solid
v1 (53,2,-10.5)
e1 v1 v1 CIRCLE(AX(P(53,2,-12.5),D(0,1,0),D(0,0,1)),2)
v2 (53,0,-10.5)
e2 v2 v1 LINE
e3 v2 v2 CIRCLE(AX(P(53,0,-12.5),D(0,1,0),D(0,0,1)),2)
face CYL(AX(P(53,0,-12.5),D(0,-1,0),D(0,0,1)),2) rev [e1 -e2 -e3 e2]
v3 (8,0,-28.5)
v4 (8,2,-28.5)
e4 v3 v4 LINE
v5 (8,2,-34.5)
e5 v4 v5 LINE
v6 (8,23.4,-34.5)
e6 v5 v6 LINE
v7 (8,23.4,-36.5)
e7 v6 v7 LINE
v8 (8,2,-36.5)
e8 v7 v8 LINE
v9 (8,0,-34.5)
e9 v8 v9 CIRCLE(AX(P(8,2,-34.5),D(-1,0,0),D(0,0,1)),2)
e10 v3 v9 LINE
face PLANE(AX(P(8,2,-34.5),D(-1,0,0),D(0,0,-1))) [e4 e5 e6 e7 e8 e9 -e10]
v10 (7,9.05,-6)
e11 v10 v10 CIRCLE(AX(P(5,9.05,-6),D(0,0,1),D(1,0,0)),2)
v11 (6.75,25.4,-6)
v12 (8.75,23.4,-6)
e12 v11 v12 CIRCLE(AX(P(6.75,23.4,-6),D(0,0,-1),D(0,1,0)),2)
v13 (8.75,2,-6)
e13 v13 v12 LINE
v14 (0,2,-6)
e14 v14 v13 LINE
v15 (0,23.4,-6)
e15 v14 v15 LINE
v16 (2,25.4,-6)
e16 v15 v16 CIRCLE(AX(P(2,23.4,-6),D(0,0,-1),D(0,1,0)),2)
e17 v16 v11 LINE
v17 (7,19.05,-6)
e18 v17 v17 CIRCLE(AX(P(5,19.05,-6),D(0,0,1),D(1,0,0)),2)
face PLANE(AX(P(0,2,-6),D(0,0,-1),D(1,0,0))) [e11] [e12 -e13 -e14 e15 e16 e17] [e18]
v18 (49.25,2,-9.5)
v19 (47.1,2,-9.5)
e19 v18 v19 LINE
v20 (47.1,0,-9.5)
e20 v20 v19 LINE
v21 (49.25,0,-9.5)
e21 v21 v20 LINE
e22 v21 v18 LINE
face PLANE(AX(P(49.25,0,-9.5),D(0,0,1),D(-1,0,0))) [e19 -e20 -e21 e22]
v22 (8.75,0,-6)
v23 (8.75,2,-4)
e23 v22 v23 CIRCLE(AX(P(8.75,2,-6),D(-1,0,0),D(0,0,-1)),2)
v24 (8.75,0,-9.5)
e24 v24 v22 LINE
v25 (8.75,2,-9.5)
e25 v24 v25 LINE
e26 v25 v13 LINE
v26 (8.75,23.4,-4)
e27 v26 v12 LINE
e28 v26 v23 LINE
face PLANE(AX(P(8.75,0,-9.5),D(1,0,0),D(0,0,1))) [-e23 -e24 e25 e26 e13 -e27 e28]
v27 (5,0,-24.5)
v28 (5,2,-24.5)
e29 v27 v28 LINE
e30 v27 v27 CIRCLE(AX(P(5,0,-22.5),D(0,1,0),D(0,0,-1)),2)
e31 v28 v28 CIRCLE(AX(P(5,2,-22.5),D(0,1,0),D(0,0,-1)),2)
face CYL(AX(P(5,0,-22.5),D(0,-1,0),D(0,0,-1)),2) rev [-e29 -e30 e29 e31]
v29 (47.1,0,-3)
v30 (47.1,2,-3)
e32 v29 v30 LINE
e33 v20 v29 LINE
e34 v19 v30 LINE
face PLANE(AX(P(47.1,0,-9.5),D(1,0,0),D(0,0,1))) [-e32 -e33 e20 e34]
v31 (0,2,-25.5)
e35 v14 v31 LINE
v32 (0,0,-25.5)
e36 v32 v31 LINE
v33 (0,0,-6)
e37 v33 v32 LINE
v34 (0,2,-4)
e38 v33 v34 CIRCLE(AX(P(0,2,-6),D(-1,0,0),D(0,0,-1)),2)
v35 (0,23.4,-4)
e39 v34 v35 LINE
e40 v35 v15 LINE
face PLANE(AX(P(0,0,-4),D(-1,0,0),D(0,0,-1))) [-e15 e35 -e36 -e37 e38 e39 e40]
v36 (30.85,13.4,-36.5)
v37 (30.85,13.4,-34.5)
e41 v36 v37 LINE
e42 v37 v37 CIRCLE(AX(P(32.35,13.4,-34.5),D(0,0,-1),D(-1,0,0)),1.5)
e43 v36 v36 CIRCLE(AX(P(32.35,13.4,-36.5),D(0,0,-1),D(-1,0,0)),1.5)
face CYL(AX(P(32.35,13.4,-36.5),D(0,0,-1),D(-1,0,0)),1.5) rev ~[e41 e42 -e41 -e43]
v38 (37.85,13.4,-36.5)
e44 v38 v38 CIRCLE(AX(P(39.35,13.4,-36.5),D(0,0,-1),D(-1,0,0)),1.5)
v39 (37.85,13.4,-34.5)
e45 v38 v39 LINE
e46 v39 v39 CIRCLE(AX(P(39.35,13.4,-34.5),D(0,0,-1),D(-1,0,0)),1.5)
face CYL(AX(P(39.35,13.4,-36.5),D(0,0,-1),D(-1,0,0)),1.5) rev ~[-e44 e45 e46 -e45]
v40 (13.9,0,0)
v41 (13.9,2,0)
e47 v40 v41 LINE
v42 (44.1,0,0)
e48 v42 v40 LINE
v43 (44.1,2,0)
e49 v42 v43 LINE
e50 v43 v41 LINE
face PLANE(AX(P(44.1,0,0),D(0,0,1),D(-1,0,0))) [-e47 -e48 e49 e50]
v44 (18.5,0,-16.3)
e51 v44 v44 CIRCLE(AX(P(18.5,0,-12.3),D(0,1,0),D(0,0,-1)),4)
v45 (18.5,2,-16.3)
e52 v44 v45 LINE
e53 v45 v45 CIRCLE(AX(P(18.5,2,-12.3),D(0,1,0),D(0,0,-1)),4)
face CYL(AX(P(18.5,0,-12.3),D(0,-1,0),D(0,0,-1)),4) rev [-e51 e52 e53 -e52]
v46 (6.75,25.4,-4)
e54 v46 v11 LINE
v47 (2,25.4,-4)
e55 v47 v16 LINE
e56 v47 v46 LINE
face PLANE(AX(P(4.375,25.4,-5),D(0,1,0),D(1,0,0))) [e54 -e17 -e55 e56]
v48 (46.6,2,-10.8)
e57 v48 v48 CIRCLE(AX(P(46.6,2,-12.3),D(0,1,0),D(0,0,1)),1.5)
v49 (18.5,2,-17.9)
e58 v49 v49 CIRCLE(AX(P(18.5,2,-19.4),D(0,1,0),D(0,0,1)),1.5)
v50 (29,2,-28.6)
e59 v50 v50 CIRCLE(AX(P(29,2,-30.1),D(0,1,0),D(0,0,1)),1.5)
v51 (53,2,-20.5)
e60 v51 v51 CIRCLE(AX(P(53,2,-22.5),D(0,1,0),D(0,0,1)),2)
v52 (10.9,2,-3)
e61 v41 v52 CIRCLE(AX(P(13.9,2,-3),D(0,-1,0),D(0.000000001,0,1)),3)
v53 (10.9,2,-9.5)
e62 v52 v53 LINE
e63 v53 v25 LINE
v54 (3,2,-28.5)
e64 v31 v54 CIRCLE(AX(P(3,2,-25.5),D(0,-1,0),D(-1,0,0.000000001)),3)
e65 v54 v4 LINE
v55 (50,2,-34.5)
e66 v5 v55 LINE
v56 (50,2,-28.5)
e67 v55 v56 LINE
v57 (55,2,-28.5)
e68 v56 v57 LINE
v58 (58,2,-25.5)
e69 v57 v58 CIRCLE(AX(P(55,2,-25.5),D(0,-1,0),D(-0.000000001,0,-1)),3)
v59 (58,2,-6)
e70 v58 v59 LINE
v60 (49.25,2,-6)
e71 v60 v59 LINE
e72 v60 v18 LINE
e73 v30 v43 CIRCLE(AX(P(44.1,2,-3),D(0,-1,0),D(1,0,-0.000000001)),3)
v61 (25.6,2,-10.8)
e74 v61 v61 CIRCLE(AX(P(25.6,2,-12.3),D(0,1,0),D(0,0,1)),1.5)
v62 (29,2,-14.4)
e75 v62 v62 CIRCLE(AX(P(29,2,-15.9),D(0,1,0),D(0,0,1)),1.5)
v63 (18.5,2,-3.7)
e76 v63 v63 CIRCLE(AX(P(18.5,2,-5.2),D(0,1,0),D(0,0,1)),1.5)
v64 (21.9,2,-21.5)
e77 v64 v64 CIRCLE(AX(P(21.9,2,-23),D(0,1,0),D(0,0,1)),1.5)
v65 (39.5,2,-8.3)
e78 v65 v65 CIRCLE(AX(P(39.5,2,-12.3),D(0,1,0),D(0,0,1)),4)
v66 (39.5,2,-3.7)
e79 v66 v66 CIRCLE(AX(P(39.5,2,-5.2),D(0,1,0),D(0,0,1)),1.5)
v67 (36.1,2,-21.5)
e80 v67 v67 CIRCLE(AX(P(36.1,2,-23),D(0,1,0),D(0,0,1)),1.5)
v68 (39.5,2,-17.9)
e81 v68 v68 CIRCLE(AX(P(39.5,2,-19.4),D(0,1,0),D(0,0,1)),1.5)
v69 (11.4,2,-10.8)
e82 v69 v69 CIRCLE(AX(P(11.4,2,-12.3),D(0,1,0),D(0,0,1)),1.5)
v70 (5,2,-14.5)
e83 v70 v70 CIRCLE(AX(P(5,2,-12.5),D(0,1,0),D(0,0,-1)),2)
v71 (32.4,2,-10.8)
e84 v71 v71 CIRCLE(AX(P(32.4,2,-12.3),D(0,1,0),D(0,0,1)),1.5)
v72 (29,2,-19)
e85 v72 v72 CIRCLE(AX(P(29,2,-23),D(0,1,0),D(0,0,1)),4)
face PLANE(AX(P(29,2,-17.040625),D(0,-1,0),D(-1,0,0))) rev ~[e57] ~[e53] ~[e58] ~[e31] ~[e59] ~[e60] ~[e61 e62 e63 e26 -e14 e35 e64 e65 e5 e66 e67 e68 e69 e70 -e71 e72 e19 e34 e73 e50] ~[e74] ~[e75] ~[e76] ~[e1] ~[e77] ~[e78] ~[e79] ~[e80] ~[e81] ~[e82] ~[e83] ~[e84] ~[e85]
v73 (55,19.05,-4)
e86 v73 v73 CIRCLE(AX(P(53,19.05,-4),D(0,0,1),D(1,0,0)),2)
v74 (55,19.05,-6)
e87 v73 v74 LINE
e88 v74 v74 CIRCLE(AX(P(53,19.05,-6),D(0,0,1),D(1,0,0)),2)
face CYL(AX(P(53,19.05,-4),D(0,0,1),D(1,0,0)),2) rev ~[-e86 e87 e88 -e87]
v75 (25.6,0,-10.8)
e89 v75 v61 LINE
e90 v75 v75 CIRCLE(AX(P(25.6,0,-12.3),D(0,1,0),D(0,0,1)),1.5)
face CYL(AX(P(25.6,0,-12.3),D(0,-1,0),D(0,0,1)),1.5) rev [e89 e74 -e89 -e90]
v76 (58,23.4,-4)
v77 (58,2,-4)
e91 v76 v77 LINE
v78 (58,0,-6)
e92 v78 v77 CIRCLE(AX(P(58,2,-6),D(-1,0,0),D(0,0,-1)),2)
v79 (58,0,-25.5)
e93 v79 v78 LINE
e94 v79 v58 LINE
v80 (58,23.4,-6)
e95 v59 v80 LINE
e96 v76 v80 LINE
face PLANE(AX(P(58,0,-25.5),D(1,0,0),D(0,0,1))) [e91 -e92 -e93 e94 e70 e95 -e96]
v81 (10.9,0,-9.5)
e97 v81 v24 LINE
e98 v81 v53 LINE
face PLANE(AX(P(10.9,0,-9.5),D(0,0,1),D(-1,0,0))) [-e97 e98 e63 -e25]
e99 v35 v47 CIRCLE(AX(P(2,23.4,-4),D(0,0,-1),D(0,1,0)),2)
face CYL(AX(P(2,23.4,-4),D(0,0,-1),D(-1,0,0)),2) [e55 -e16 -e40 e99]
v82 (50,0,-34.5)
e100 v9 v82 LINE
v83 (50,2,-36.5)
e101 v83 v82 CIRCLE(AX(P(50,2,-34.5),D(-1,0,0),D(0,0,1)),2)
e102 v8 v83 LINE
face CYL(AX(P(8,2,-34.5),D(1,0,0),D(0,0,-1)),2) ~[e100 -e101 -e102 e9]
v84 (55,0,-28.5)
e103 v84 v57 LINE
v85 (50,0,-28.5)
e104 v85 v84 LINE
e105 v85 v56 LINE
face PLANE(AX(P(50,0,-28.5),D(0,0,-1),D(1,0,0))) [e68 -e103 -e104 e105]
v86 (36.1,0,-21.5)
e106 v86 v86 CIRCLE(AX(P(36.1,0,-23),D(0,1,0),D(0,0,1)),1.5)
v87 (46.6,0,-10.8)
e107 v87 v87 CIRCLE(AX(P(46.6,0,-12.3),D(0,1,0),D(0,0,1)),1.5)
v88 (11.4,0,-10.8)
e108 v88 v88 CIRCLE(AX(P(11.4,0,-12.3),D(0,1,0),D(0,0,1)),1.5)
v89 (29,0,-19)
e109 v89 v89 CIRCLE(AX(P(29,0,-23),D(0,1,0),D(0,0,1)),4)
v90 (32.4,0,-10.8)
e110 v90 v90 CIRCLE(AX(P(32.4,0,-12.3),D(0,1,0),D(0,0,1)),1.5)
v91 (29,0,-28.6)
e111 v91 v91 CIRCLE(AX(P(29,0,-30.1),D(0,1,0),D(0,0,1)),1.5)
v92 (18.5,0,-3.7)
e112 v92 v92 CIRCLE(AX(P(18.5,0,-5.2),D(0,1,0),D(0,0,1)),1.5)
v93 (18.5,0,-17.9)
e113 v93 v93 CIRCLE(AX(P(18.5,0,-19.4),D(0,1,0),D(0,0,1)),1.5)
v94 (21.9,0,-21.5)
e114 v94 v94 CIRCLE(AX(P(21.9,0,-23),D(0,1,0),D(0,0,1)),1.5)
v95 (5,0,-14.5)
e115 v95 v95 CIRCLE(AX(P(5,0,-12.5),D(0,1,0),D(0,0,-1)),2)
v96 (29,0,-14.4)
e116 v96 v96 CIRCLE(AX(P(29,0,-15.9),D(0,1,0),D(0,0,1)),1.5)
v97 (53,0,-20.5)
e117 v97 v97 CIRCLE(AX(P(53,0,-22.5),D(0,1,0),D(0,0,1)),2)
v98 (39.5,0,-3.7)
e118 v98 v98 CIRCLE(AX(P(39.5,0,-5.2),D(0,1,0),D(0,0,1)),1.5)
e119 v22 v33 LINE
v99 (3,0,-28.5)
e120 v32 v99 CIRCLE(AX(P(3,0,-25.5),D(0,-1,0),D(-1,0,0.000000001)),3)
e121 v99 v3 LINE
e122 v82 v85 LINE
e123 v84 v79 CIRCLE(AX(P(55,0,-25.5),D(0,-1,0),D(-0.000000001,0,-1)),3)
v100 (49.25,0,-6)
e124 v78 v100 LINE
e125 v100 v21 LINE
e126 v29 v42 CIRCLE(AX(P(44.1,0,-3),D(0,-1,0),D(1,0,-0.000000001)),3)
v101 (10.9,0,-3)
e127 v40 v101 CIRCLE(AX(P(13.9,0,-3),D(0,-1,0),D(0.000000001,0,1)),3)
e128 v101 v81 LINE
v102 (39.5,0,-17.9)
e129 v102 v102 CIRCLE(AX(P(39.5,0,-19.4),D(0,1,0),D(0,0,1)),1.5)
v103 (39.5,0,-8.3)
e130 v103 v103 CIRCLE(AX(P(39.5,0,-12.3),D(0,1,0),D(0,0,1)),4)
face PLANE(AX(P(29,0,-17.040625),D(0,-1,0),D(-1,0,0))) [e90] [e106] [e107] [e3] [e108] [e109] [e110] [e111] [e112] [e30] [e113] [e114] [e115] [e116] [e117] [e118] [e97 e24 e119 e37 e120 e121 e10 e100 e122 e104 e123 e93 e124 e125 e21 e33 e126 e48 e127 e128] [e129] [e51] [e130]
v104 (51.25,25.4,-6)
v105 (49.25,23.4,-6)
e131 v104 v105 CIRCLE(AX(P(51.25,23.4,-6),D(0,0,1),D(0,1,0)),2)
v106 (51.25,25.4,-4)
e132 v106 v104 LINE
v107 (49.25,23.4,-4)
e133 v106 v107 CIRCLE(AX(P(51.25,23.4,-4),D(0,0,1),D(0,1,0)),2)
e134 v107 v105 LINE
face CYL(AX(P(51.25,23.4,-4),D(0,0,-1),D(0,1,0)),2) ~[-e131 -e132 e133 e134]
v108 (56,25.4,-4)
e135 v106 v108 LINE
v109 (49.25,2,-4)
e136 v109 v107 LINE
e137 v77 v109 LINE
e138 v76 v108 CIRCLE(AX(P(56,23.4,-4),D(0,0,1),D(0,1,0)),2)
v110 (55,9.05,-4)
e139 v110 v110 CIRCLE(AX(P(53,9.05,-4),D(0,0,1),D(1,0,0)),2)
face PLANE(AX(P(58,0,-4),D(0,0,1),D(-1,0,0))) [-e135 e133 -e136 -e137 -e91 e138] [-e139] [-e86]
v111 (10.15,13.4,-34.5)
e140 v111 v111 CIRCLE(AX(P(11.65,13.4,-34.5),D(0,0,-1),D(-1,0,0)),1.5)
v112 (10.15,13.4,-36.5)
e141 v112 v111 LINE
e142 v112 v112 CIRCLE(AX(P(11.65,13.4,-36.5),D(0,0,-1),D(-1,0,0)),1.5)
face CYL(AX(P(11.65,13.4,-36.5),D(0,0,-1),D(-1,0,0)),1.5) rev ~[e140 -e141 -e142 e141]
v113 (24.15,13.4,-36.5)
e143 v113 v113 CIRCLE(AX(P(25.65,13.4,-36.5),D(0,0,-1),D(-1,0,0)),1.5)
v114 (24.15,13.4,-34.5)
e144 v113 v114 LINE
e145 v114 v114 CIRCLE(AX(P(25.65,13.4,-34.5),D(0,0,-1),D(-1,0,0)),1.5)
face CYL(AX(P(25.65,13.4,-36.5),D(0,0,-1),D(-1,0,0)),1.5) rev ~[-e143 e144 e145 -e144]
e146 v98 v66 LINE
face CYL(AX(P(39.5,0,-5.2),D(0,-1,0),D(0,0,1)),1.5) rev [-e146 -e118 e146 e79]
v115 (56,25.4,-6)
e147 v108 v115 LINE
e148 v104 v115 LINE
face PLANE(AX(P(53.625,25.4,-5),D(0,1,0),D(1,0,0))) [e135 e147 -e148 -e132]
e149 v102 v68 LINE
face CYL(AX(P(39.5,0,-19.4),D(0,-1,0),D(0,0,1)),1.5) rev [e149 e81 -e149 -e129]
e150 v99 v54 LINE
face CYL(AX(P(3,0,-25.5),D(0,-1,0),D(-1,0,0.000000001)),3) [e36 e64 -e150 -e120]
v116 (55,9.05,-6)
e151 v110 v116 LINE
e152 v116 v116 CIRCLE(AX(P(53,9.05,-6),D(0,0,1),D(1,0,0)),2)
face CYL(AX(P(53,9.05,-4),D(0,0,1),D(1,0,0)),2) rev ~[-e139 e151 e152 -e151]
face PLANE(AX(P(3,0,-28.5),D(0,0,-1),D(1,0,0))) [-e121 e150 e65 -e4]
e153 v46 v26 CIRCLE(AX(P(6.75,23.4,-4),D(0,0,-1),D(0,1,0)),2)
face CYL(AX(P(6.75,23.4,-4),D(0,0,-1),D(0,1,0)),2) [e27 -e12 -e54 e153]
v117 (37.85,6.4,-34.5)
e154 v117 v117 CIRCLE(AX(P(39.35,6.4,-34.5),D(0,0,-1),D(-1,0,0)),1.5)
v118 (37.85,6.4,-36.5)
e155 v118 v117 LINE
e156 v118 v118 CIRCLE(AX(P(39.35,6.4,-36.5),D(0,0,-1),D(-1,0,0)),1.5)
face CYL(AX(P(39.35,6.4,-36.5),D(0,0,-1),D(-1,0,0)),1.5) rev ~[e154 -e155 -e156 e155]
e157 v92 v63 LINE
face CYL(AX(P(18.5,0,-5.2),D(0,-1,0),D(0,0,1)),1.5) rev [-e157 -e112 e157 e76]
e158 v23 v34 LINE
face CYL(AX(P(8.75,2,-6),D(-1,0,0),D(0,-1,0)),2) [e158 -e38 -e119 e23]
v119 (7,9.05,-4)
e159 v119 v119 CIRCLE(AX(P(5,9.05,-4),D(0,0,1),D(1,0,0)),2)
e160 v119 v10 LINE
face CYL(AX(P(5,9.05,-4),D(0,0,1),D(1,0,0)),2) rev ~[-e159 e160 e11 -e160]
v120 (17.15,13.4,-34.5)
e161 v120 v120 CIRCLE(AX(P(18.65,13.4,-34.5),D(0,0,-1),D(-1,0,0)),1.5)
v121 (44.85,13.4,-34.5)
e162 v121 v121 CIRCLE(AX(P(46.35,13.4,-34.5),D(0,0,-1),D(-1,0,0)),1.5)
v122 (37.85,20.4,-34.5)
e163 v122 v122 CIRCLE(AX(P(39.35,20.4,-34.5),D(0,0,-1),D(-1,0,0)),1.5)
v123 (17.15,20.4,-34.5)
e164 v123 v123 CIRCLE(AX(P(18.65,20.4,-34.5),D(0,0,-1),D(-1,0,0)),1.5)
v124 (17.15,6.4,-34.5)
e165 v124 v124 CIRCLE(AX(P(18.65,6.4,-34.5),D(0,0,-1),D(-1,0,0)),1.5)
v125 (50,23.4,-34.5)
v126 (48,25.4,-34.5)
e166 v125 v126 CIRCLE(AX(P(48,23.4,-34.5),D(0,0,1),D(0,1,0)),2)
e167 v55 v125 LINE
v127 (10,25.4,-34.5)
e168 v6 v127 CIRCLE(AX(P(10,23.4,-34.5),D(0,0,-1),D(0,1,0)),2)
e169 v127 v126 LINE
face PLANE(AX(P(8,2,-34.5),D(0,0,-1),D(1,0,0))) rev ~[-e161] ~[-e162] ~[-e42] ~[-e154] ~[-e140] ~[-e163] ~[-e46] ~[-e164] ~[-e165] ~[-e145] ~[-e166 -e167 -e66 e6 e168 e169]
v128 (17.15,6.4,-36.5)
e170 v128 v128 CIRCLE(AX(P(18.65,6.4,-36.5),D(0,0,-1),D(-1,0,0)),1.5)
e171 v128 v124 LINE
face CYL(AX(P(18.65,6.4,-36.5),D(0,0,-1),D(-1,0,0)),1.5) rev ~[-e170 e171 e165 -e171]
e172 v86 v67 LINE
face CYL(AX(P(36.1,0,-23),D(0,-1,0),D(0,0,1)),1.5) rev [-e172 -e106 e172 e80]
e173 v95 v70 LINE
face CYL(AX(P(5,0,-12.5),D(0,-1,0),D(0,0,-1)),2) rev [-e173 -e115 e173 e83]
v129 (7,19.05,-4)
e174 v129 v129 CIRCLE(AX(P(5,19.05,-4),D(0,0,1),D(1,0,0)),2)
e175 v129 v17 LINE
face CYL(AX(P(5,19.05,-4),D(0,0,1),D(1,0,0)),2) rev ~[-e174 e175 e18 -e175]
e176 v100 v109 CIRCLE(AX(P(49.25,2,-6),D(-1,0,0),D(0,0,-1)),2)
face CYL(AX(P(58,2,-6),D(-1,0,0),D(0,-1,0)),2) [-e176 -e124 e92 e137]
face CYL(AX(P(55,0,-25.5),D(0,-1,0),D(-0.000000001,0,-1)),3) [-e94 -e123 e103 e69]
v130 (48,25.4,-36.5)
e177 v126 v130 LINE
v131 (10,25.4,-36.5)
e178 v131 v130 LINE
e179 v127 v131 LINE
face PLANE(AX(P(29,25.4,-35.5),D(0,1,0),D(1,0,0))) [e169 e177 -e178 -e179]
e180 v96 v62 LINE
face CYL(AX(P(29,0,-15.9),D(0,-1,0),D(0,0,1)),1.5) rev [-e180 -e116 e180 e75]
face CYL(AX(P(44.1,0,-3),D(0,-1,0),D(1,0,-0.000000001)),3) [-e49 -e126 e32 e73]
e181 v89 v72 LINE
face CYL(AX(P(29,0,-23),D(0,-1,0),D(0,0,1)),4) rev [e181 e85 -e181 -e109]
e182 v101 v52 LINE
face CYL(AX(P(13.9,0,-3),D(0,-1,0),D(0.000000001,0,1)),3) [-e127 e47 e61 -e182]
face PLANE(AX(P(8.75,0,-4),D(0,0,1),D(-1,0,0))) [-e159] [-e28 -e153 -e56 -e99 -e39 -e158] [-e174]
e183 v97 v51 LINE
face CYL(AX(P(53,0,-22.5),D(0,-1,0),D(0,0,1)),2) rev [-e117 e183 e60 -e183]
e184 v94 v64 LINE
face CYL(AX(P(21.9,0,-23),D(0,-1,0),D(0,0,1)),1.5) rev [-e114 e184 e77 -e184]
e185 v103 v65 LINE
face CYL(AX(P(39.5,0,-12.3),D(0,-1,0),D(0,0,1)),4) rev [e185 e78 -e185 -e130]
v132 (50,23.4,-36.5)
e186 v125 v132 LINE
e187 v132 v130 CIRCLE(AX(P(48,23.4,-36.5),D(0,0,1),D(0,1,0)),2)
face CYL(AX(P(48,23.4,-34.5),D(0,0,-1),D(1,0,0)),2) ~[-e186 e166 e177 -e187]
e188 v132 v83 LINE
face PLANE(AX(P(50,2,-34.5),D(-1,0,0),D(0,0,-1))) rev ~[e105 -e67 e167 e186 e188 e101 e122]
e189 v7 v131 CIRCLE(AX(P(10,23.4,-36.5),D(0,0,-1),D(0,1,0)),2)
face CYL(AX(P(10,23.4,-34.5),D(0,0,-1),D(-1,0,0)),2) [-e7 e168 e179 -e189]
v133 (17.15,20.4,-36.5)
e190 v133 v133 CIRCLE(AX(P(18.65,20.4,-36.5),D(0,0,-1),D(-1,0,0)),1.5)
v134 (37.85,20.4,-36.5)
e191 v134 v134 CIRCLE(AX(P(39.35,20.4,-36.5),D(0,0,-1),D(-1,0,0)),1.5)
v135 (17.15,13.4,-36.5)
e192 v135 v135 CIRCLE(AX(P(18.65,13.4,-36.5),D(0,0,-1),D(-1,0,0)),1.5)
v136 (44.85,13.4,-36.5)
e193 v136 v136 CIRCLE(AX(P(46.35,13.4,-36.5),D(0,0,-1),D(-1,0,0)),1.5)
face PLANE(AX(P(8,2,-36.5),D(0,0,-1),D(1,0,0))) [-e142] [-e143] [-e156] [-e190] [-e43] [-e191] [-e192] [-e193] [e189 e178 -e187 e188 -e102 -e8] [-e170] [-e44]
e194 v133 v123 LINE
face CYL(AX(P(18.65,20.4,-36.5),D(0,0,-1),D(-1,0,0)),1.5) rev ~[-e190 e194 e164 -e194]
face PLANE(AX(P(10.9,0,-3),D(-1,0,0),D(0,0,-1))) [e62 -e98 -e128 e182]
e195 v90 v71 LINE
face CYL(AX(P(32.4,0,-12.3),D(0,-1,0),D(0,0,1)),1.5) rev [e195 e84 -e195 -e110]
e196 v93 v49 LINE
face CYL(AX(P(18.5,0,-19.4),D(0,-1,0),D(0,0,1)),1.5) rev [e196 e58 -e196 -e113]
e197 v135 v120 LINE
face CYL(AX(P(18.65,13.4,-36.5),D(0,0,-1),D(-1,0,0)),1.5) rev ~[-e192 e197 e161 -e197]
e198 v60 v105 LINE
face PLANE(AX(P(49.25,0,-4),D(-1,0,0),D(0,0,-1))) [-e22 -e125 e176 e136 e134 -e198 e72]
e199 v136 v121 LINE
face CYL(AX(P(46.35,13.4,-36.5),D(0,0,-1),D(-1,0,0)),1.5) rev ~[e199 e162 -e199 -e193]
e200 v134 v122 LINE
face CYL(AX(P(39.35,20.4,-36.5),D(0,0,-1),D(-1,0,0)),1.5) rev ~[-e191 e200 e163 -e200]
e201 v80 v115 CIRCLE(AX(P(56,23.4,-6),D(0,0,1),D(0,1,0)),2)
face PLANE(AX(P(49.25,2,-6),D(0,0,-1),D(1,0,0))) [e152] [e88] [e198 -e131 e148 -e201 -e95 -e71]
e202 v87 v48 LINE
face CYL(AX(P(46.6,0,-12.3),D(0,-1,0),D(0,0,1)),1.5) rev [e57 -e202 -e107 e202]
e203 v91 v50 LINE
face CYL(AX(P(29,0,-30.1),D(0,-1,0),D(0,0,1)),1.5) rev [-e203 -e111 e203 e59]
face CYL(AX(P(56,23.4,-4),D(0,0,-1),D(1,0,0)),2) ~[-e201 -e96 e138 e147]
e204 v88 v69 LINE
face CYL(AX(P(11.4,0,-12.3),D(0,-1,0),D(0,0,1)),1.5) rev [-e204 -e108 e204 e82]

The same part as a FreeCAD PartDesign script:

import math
import FreeCAD as App
import Part
import Sketcher
Q = App.Units.Quantity


def edges_at(feature, points):
    """Names of the edges that pass closest to the given points."""
    edges = feature.Shape.Edges
    near = lambda p: min(range(len(edges)), key=lambda i: edges[i].distToShape(Part.Vertex(*p))[0])
    return sorted({f"Edge{near(p) + 1}" for p in points})


def add_polygon(sketch, points):
    """Adds a closed chain of lines whose ends are joined by coincident constraints."""
    first, n = sketch.GeometryCount, len(points)
    for a, b in zip(points, points[1:] + points[:1]):
        sketch.addGeometry(Part.LineSegment(App.Vector(*a, 0), App.Vector(*b, 0)), False)
    for i in range(n):
        sketch.addConstraint(Sketcher.Constraint("Coincident", first + i, 2, first + (i + 1) % n, 1))

doc = App.newDocument("Part")
body = doc.addObject("PartDesign::Body", "Body")

# Sketch on XZ plane
sketch1 = body.newObject("Sketcher::SketchObject", "Sketch")
sketch1.AttachmentSupport = (doc.getObject("XZ_Plane"), [""])
sketch1.MapMode = "FlatFace"
sketch1.addGeometry([
    Part.LineSegment(App.Vector(0, -25.5, 0), App.Vector(0, -4, 0)),  # 0
    Part.LineSegment(App.Vector(0, -4, 0), App.Vector(8.8, -4, 0)),  # 1
    Part.LineSegment(App.Vector(8.8, -4, 0), App.Vector(8.8, -9.5, 0)),  # 2
    Part.LineSegment(App.Vector(8.8, -9.5, 0), App.Vector(10.9, -9.5, 0)),  # 3
    Part.LineSegment(App.Vector(10.9, -9.5, 0), App.Vector(10.9, -3, 0)),  # 4
    Part.ArcOfCircle(Part.Circle(App.Vector(13.9, -3, 0), App.Vector(0, 0, 1), 3), math.radians(90), math.radians(180)),  # 5
    Part.LineSegment(App.Vector(13.9, 0, 0), App.Vector(44.1, 0, 0)),  # 6
    Part.ArcOfCircle(Part.Circle(App.Vector(44.1, -3, 0), App.Vector(0, 0, 1), 3), math.radians(0), math.radians(90)),  # 7
    Part.LineSegment(App.Vector(47.1, -3, 0), App.Vector(47.1, -9.5, 0)),  # 8
    Part.LineSegment(App.Vector(47.1, -9.5, 0), App.Vector(49.2, -9.5, 0)),  # 9
    Part.LineSegment(App.Vector(49.2, -9.5, 0), App.Vector(49.2, -4, 0)),  # 10
    Part.LineSegment(App.Vector(49.2, -4, 0), App.Vector(58, -4, 0)),  # 11
    Part.LineSegment(App.Vector(58, -4, 0), App.Vector(58, -25.5, 0)),  # 12
    Part.ArcOfCircle(Part.Circle(App.Vector(55, -25.5, 0), App.Vector(0, 0, 1), 3), math.radians(-90), math.radians(0)),  # 13
    Part.LineSegment(App.Vector(55, -28.5, 0), App.Vector(50, -28.5, 0)),  # 14
    Part.LineSegment(App.Vector(50, -28.5, 0), App.Vector(50, -36.5, 0)),  # 15
    Part.LineSegment(App.Vector(50, -36.5, 0), App.Vector(8, -36.5, 0)),  # 16
    Part.LineSegment(App.Vector(8, -36.5, 0), App.Vector(8, -28.5, 0)),  # 17
    Part.LineSegment(App.Vector(8, -28.5, 0), App.Vector(3, -28.5, 0)),  # 18
    Part.ArcOfCircle(Part.Circle(App.Vector(3, -25.5, 0), App.Vector(0, 0, 1), 3), math.radians(180), math.radians(270)),  # 19
    Part.Circle(App.Vector(39.5, -5.2, 0), App.Vector(0, 0, 1), 1.5),  # 20
    Part.Circle(App.Vector(53, -12.5, 0), App.Vector(0, 0, 1), 2),  # 21
    Part.Circle(App.Vector(46.6, -12.3, 0), App.Vector(0, 0, 1), 1.5),  # 22
    Part.Circle(App.Vector(39.5, -12.3, 0), App.Vector(0, 0, 1), 4),  # 23
    Part.Circle(App.Vector(32.4, -12.3, 0), App.Vector(0, 0, 1), 1.5),  # 24
    Part.Circle(App.Vector(18.5, -5.2, 0), App.Vector(0, 0, 1), 1.5),  # 25
    Part.Circle(App.Vector(25.6, -12.3, 0), App.Vector(0, 0, 1), 1.5),  # 26
    Part.Circle(App.Vector(18.5, -12.3, 0), App.Vector(0, 0, 1), 4),  # 27
    Part.Circle(App.Vector(29, -15.9, 0), App.Vector(0, 0, 1), 1.5),  # 28
    Part.Circle(App.Vector(11.4, -12.3, 0), App.Vector(0, 0, 1), 1.5),  # 29
    Part.Circle(App.Vector(5, -12.5, 0), App.Vector(0, 0, 1), 2),  # 30
    Part.Circle(App.Vector(53, -22.5, 0), App.Vector(0, 0, 1), 2),  # 31
    Part.Circle(App.Vector(39.5, -19.4, 0), App.Vector(0, 0, 1), 1.5),  # 32
    Part.Circle(App.Vector(36.1, -23, 0), App.Vector(0, 0, 1), 1.5),  # 33
    Part.Circle(App.Vector(18.5, -19.4, 0), App.Vector(0, 0, 1), 1.5),  # 34
    Part.Circle(App.Vector(29, -23, 0), App.Vector(0, 0, 1), 4),  # 35
    Part.Circle(App.Vector(21.9, -23, 0), App.Vector(0, 0, 1), 1.5),  # 36
    Part.Circle(App.Vector(5, -22.5, 0), App.Vector(0, 0, 1), 2),  # 37
    Part.Circle(App.Vector(29, -30.1, 0), App.Vector(0, 0, 1), 1.5),  # 38
], False)
sketch1.addConstraint([
    Sketcher.Constraint("Coincident", 0, 2, 1, 1),
    Sketcher.Constraint("Coincident", 1, 2, 2, 1),
    Sketcher.Constraint("Coincident", 2, 2, 3, 1),
    Sketcher.Constraint("Coincident", 3, 2, 4, 1),
    Sketcher.Constraint("Tangent", 4, 2, 5, 2),
    Sketcher.Constraint("Tangent", 5, 1, 6, 1),
    Sketcher.Constraint("Tangent", 6, 2, 7, 2),
    Sketcher.Constraint("Tangent", 7, 1, 8, 1),
    Sketcher.Constraint("Coincident", 8, 2, 9, 1),
    Sketcher.Constraint("Coincident", 9, 2, 10, 1),
    Sketcher.Constraint("Coincident", 10, 2, 11, 1),
    Sketcher.Constraint("Coincident", 11, 2, 12, 1),
    Sketcher.Constraint("Tangent", 12, 2, 13, 2),
    Sketcher.Constraint("Tangent", 13, 1, 14, 1),
    Sketcher.Constraint("Coincident", 14, 2, 15, 1),
    Sketcher.Constraint("Coincident", 15, 2, 16, 1),
    Sketcher.Constraint("Coincident", 16, 2, 17, 1),
    Sketcher.Constraint("Coincident", 17, 2, 18, 1),
    Sketcher.Constraint("Tangent", 18, 2, 19, 2),
    Sketcher.Constraint("Tangent", 19, 1, 0, 1),
    Sketcher.Constraint("Vertical", 0),
    Sketcher.Constraint("Horizontal", 1),
    Sketcher.Constraint("Vertical", 2),
    Sketcher.Constraint("Horizontal", 3),
    Sketcher.Constraint("Vertical", 4),
    Sketcher.Constraint("Horizontal", 6),
    Sketcher.Constraint("Vertical", 8),
    Sketcher.Constraint("Horizontal", 9),
    Sketcher.Constraint("Vertical", 10),
    Sketcher.Constraint("Horizontal", 11),
    Sketcher.Constraint("Vertical", 12),
    Sketcher.Constraint("Horizontal", 14),
    Sketcher.Constraint("Vertical", 15),
    Sketcher.Constraint("Horizontal", 16),
    Sketcher.Constraint("Vertical", 17),
    Sketcher.Constraint("Horizontal", 18),
    Sketcher.Constraint("Equal", 5, 7),
    Sketcher.Constraint("Equal", 7, 13),
    Sketcher.Constraint("Equal", 13, 19),
    Sketcher.Constraint("Equal", 20, 22),
    Sketcher.Constraint("Equal", 22, 24),
    Sketcher.Constraint("Equal", 24, 25),
    Sketcher.Constraint("Equal", 25, 26),
    Sketcher.Constraint("Equal", 23, 27),
    Sketcher.Constraint("Equal", 26, 28),
    Sketcher.Constraint("Equal", 28, 29),
    Sketcher.Constraint("Equal", 21, 30),
    Sketcher.Constraint("Equal", 30, 31),
    Sketcher.Constraint("Equal", 29, 32),
    Sketcher.Constraint("Equal", 32, 33),
    Sketcher.Constraint("Equal", 33, 34),
    Sketcher.Constraint("Equal", 27, 35),
    Sketcher.Constraint("Equal", 34, 36),
    Sketcher.Constraint("Equal", 31, 37),
    Sketcher.Constraint("Equal", 36, 38),
    Sketcher.Constraint("PointOnObject", 0, 2, -2),
    Sketcher.Constraint("PointOnObject", 5, 1, -1),
    Sketcher.Constraint("Horizontal", 13, 3, 19, 3),
    Sketcher.Constraint("Horizontal", 22, 3, 23, 3),
    Sketcher.Constraint("Horizontal", 23, 3, 24, 3),
    Sketcher.Constraint("Horizontal", 20, 3, 25, 3),
    Sketcher.Constraint("Horizontal", 24, 3, 26, 3),
    Sketcher.Constraint("Horizontal", 26, 3, 27, 3),
    Sketcher.Constraint("Horizontal", 27, 3, 29, 3),
    Sketcher.Constraint("Horizontal", 21, 3, 30, 3),
    Sketcher.Constraint("Horizontal", 32, 3, 34, 3),
    Sketcher.Constraint("Horizontal", 33, 3, 35, 3),
    Sketcher.Constraint("Horizontal", 35, 3, 36, 3),
    Sketcher.Constraint("Horizontal", 31, 3, 37, 3),
    Sketcher.Constraint("Horizontal", 3, 2, 8, 2),
    Sketcher.Constraint("Horizontal", 1, 2, 10, 2),
    Sketcher.Constraint("Vertical", 20, 3, 23, 3),
    Sketcher.Constraint("Vertical", 25, 3, 27, 3),
    Sketcher.Constraint("Vertical", 21, 3, 31, 3),
    Sketcher.Constraint("Vertical", 23, 3, 32, 3),
    Sketcher.Constraint("Vertical", 27, 3, 34, 3),
    Sketcher.Constraint("Vertical", 28, 3, 35, 3),
    Sketcher.Constraint("Vertical", 30, 3, 37, 3),
    Sketcher.Constraint("Vertical", 35, 3, 38, 3),
    Sketcher.Constraint("Equal", 3, 9),
    Sketcher.Constraint("Equal", 1, 11),
    Sketcher.Constraint("Equal", 14, 18),
    Sketcher.Constraint("Diameter", 20, Q("3 mm")),
    Sketcher.Constraint("Diameter", 21, Q("4 mm")),
    Sketcher.Constraint("Diameter", 23, Q("8 mm")),
    Sketcher.Constraint("Radius", 5, Q("3 mm")),
    Sketcher.Constraint("DistanceX", 14, 2, 14, 1, Q("5 mm")),
    Sketcher.Constraint("DistanceX", 16, 2, 16, 1, Q("42 mm")),
    Sketcher.Constraint("DistanceY", 15, 2, 15, 1, Q("8 mm")),
    Sketcher.Constraint("DistanceX", 6, 1, 6, 2, Q("30.2 mm")),
    Sketcher.Constraint("DistanceY", 0, 1, 0, 2, Q("21.5 mm")),
    Sketcher.Constraint("DistanceY", 2, 2, 2, 1, Q("5.5 mm")),
    Sketcher.Constraint("DistanceY", 4, 1, 4, 2, Q("6.5 mm")),
    Sketcher.Constraint("DistanceX", -1, 1, 21, 3, Q("53 mm")),
    Sketcher.Constraint("DistanceX", -1, 1, 28, 3, Q("29 mm")),
    Sketcher.Constraint("DistanceX", -1, 1, 30, 3, Q("5 mm")),
    Sketcher.Constraint("DistanceY", 33, 3, -1, 1, Q("23 mm")),
    Sketcher.Constraint("DistanceY", 13, 3, 21, 3, Q("13 mm")),
    Sketcher.Constraint("DistanceX", 25, 3, 20, 3, Q("21 mm")),
    Sketcher.Constraint("DistanceY", 13, 3, 31, 3, Q("3 mm")),
    Sketcher.Constraint("DistanceX", 1, 1, 1, 2, Q("8.75 mm")),
    Sketcher.Constraint("DistanceX", -1, 1, 20, 3, Q("39.5 mm")),
    Sketcher.Constraint("DistanceY", 20, 3, -1, 1, Q("5.2 mm")),
    Sketcher.Constraint("DistanceX", -1, 1, 22, 3, Q("46.6 mm")),
    Sketcher.Constraint("DistanceY", 22, 3, -1, 1, Q("12.3 mm")),
    Sketcher.Constraint("DistanceX", -1, 1, 24, 3, Q("32.4 mm")),
    Sketcher.Constraint("DistanceX", -1, 1, 26, 3, Q("25.6 mm")),
    Sketcher.Constraint("DistanceY", 28, 3, -1, 1, Q("15.9 mm")),
    Sketcher.Constraint("DistanceX", -1, 1, 29, 3, Q("11.4 mm")),
    Sketcher.Constraint("DistanceY", 32, 3, -1, 1, Q("19.4 mm")),
    Sketcher.Constraint("DistanceX", -1, 1, 33, 3, Q("36.1 mm")),
    Sketcher.Constraint("DistanceX", -1, 1, 36, 3, Q("21.9 mm")),
    Sketcher.Constraint("DistanceY", 38, 3, -1, 1, Q("30.1 mm")),
])
pad1 = body.newObject("PartDesign::Pad", "Pad")
pad1.Profile = sketch1
pad1.Length = 2
pad1.Reversed = True

# Sketch on XZ plane
sketch2 = body.newObject("Sketcher::SketchObject", "Sketch001")
sketch2.AttachmentSupport = (doc.getObject("XZ_Plane"), [""])
sketch2.MapMode = "FlatFace"
sketch2.AttachmentOffset = App.Placement(App.Vector(0, 0, -2), App.Rotation())
add_polygon(sketch2, [(8, -36.5), (8, -34.5), (50, -34.5), (50, -36.5)])  # lines 0-3
add_polygon(sketch2, [(0, -6), (0, -4), (8.8, -4), (8.8, -6)])  # lines 4-7
add_polygon(sketch2, [(49.2, -6), (49.2, -4), (58, -4), (58, -6)])  # lines 8-11
sketch2.addConstraint([
    Sketcher.Constraint("Vertical", 0),
    Sketcher.Constraint("Horizontal", 1),
    Sketcher.Constraint("Vertical", 2),
    Sketcher.Constraint("Horizontal", 3),
    Sketcher.Constraint("Vertical", 4),
    Sketcher.Constraint("Horizontal", 5),
    Sketcher.Constraint("Vertical", 6),
    Sketcher.Constraint("Horizontal", 7),
    Sketcher.Constraint("Vertical", 8),
    Sketcher.Constraint("Horizontal", 9),
    Sketcher.Constraint("Vertical", 10),
    Sketcher.Constraint("Horizontal", 11),
    Sketcher.Constraint("PointOnObject", 4, 2, -2),
    Sketcher.Constraint("Horizontal", 5, 2, 8, 2),
    Sketcher.Constraint("Horizontal", 7, 2, 10, 2),
    Sketcher.Constraint("Equal", 7, 9),
    Sketcher.Constraint("Equal", 2, 4),
    Sketcher.Constraint("DistanceX", 1, 1, 1, 2, Q("42 mm")),
    Sketcher.Constraint("DistanceY", 0, 1, 0, 2, Q("2 mm")),
    Sketcher.Constraint("DistanceX", -1, 1, 0, 2, Q("8 mm")),
    Sketcher.Constraint("DistanceY", 4, 2, -1, 1, Q("4 mm")),
    Sketcher.Constraint("DistanceX", -1, 1, 9, 2, Q("58 mm")),
    Sketcher.Constraint("DistanceX", 5, 1, 5, 2, Q("8.75 mm")),
    Sketcher.Constraint("DistanceY", 0, 2, -1, 1, Q("34.5 mm")),
])
pad2 = body.newObject("PartDesign::Pad", "Pad001")
pad2.Profile = sketch2
pad2.Length = 23.4
pad2.Reversed = True
doc.recompute()

fillet = body.newObject("PartDesign::Fillet", "Fillet")
fillet.Base = (pad2, edges_at(pad2, [
    (8, 25.4, -35.5),
    (50, 25.4, -35.5),
    (0, 25.4, -5),
    (8.75, 25.4, -5),
    (49.25, 25.4, -5),
    (58, 25.4, -5),
]))
fillet.Radius = 2
doc.recompute()

fillet2 = body.newObject("PartDesign::Fillet", "Fillet001")
fillet2.Base = (fillet, edges_at(fillet, [(53.625, 0, -4), (4.375, 0, -4), (29, 0, -36.5)]))
fillet2.Radius = 2

# Sketch on XY plane
sketch3 = body.newObject("Sketcher::SketchObject", "Sketch002")
sketch3.AttachmentSupport = (doc.getObject("XY_Plane"), [""])
sketch3.MapMode = "FlatFace"
sketch3.AttachmentOffset = App.Placement(App.Vector(0, 0, -4), App.Rotation())
sketch3.addGeometry(Part.Circle(App.Vector(5, 19.1, 0), App.Vector(0, 0, 1), 2), False)
sketch3.addConstraint([
    Sketcher.Constraint("Diameter", 0, Q("4 mm")),
    Sketcher.Constraint("DistanceX", -1, 1, 0, 3, Q("5 mm")),
    Sketcher.Constraint("DistanceY", -1, 1, 0, 3, Q("19.05 mm")),
])
pocket1 = body.newObject("PartDesign::Pocket", "Pocket")
pocket1.Profile = sketch3
pocket1.Type = "UpToFirst"

# Sketch on XY plane
sketch4 = body.newObject("Sketcher::SketchObject", "Sketch003")
sketch4.AttachmentSupport = (doc.getObject("XY_Plane"), [""])
sketch4.MapMode = "FlatFace"
sketch4.AttachmentOffset = App.Placement(App.Vector(0, 0, -4), App.Rotation())
sketch4.addGeometry(Part.Circle(App.Vector(5, 9.1, 0), App.Vector(0, 0, 1), 2), False)
sketch4.addConstraint([
    Sketcher.Constraint("Diameter", 0, Q("4 mm")),
    Sketcher.Constraint("DistanceX", -1, 1, 0, 3, Q("5 mm")),
    Sketcher.Constraint("DistanceY", -1, 1, 0, 3, Q("9.05 mm")),
])
pocket2 = body.newObject("PartDesign::Pocket", "Pocket001")
pocket2.Profile = sketch4
pocket2.Type = "UpToFirst"

# Sketch on XY plane
sketch5 = body.newObject("Sketcher::SketchObject", "Sketch004")
sketch5.AttachmentSupport = (doc.getObject("XY_Plane"), [""])
sketch5.MapMode = "FlatFace"
sketch5.AttachmentOffset = App.Placement(App.Vector(0, 0, -4), App.Rotation())
sketch5.addGeometry(Part.Circle(App.Vector(53, 9.1, 0), App.Vector(0, 0, 1), 2), False)
sketch5.addConstraint([
    Sketcher.Constraint("Diameter", 0, Q("4 mm")),
    Sketcher.Constraint("DistanceX", -1, 1, 0, 3, Q("53 mm")),
    Sketcher.Constraint("DistanceY", -1, 1, 0, 3, Q("9.05 mm")),
])
pocket3 = body.newObject("PartDesign::Pocket", "Pocket002")
pocket3.Profile = sketch5
pocket3.Type = "UpToFirst"

# Sketch on XY plane
sketch6 = body.newObject("Sketcher::SketchObject", "Sketch005")
sketch6.AttachmentSupport = (doc.getObject("XY_Plane"), [""])
sketch6.MapMode = "FlatFace"
sketch6.AttachmentOffset = App.Placement(App.Vector(0, 0, -4), App.Rotation())
sketch6.addGeometry(Part.Circle(App.Vector(53, 19.1, 0), App.Vector(0, 0, 1), 2), False)
sketch6.addConstraint([
    Sketcher.Constraint("Diameter", 0, Q("4 mm")),
    Sketcher.Constraint("DistanceX", -1, 1, 0, 3, Q("53 mm")),
    Sketcher.Constraint("DistanceY", -1, 1, 0, 3, Q("19.05 mm")),
])
pocket4 = body.newObject("PartDesign::Pocket", "Pocket003")
pocket4.Profile = sketch6
pocket4.Type = "UpToFirst"

# Sketch on XY plane
sketch7 = body.newObject("Sketcher::SketchObject", "Sketch006")
sketch7.AttachmentSupport = (doc.getObject("XY_Plane"), [""])
sketch7.MapMode = "FlatFace"
sketch7.AttachmentOffset = App.Placement(App.Vector(0, 0, -36.5), App.Rotation())
sketch7.addGeometry(Part.Circle(App.Vector(18.6, 13.4, 0), App.Vector(0, 0, 1), 1.5), False)
sketch7.addConstraint([
    Sketcher.Constraint("Diameter", 0, Q("3 mm")),
    Sketcher.Constraint("DistanceY", -1, 1, 0, 3, Q("13.4 mm")),
    Sketcher.Constraint("DistanceX", -1, 1, 0, 3, Q("18.65 mm")),
])
pocket5 = body.newObject("PartDesign::Pocket", "Pocket004")
pocket5.Profile = sketch7
pocket5.Type = "UpToFirst"
pocket5.Reversed = True

# Sketch on XY plane
sketch8 = body.newObject("Sketcher::SketchObject", "Sketch007")
sketch8.AttachmentSupport = (doc.getObject("XY_Plane"), [""])
sketch8.MapMode = "FlatFace"
sketch8.AttachmentOffset = App.Placement(App.Vector(0, 0, -36.5), App.Rotation())
sketch8.addGeometry(Part.Circle(App.Vector(18.6, 20.4, 0), App.Vector(0, 0, 1), 1.5), False)
sketch8.addConstraint([
    Sketcher.Constraint("Diameter", 0, Q("3 mm")),
    Sketcher.Constraint("DistanceY", -1, 1, 0, 3, Q("20.4 mm")),
    Sketcher.Constraint("DistanceX", -1, 1, 0, 3, Q("18.65 mm")),
])
pocket6 = body.newObject("PartDesign::Pocket", "Pocket005")
pocket6.Profile = sketch8
pocket6.Type = "UpToFirst"
pocket6.Reversed = True

# Sketch on XY plane
sketch9 = body.newObject("Sketcher::SketchObject", "Sketch008")
sketch9.AttachmentSupport = (doc.getObject("XY_Plane"), [""])
sketch9.MapMode = "FlatFace"
sketch9.AttachmentOffset = App.Placement(App.Vector(0, 0, -36.5), App.Rotation())
sketch9.addGeometry(Part.Circle(App.Vector(11.7, 13.4, 0), App.Vector(0, 0, 1), 1.5), False)
sketch9.addConstraint([
    Sketcher.Constraint("Diameter", 0, Q("3 mm")),
    Sketcher.Constraint("DistanceY", -1, 1, 0, 3, Q("13.4 mm")),
    Sketcher.Constraint("DistanceX", -1, 1, 0, 3, Q("11.65 mm")),
])
pocket7 = body.newObject("PartDesign::Pocket", "Pocket006")
pocket7.Profile = sketch9
pocket7.Type = "UpToFirst"
pocket7.Reversed = True

# Sketch on XY plane
sketch10 = body.newObject("Sketcher::SketchObject", "Sketch009")
sketch10.AttachmentSupport = (doc.getObject("XY_Plane"), [""])
sketch10.MapMode = "FlatFace"
sketch10.AttachmentOffset = App.Placement(App.Vector(0, 0, -36.5), App.Rotation())
sketch10.addGeometry(Part.Circle(App.Vector(18.6, 6.4, 0), App.Vector(0, 0, 1), 1.5), False)
sketch10.addConstraint([
    Sketcher.Constraint("Diameter", 0, Q("3 mm")),
    Sketcher.Constraint("DistanceY", -1, 1, 0, 3, Q("6.4 mm")),
    Sketcher.Constraint("DistanceX", -1, 1, 0, 3, Q("18.65 mm")),
])
pocket8 = body.newObject("PartDesign::Pocket", "Pocket007")
pocket8.Profile = sketch10
pocket8.Type = "UpToFirst"
pocket8.Reversed = True

# Sketch on XY plane
sketch11 = body.newObject("Sketcher::SketchObject", "Sketch010")
sketch11.AttachmentSupport = (doc.getObject("XY_Plane"), [""])
sketch11.MapMode = "FlatFace"
sketch11.AttachmentOffset = App.Placement(App.Vector(0, 0, -36.5), App.Rotation())
sketch11.addGeometry(Part.Circle(App.Vector(25.6, 13.4, 0), App.Vector(0, 0, 1), 1.5), False)
sketch11.addConstraint([
    Sketcher.Constraint("Diameter", 0, Q("3 mm")),
    Sketcher.Constraint("DistanceY", -1, 1, 0, 3, Q("13.4 mm")),
    Sketcher.Constraint("DistanceX", -1, 1, 0, 3, Q("25.65 mm")),
])
pocket9 = body.newObject("PartDesign::Pocket", "Pocket008")
pocket9.Profile = sketch11
pocket9.Type = "UpToFirst"
pocket9.Reversed = True

# Sketch on XY plane
sketch12 = body.newObject("Sketcher::SketchObject", "Sketch011")
sketch12.AttachmentSupport = (doc.getObject("XY_Plane"), [""])
sketch12.MapMode = "FlatFace"
sketch12.AttachmentOffset = App.Placement(App.Vector(0, 0, -36.5), App.Rotation())
sketch12.addGeometry(Part.Circle(App.Vector(39.4, 6.4, 0), App.Vector(0, 0, 1), 1.5), False)
sketch12.addConstraint([
    Sketcher.Constraint("Diameter", 0, Q("3 mm")),
    Sketcher.Constraint("DistanceY", -1, 1, 0, 3, Q("6.4 mm")),
    Sketcher.Constraint("DistanceX", -1, 1, 0, 3, Q("39.35 mm")),
])
pocket10 = body.newObject("PartDesign::Pocket", "Pocket009")
pocket10.Profile = sketch12
pocket10.Type = "UpToFirst"
pocket10.Reversed = True

# Sketch on XY plane
sketch13 = body.newObject("Sketcher::SketchObject", "Sketch012")
sketch13.AttachmentSupport = (doc.getObject("XY_Plane"), [""])
sketch13.MapMode = "FlatFace"
sketch13.AttachmentOffset = App.Placement(App.Vector(0, 0, -36.5), App.Rotation())
sketch13.addGeometry(Part.Circle(App.Vector(46.4, 13.4, 0), App.Vector(0, 0, 1), 1.5), False)
sketch13.addConstraint([
    Sketcher.Constraint("Diameter", 0, Q("3 mm")),
    Sketcher.Constraint("DistanceY", -1, 1, 0, 3, Q("13.4 mm")),
    Sketcher.Constraint("DistanceX", -1, 1, 0, 3, Q("46.35 mm")),
])
pocket11 = body.newObject("PartDesign::Pocket", "Pocket010")
pocket11.Profile = sketch13
pocket11.Type = "UpToFirst"
pocket11.Reversed = True

# Sketch on XY plane
sketch14 = body.newObject("Sketcher::SketchObject", "Sketch013")
sketch14.AttachmentSupport = (doc.getObject("XY_Plane"), [""])
sketch14.MapMode = "FlatFace"
sketch14.AttachmentOffset = App.Placement(App.Vector(0, 0, -36.5), App.Rotation())
sketch14.addGeometry(Part.Circle(App.Vector(39.4, 13.4, 0), App.Vector(0, 0, 1), 1.5), False)
sketch14.addConstraint([
    Sketcher.Constraint("Diameter", 0, Q("3 mm")),
    Sketcher.Constraint("DistanceY", -1, 1, 0, 3, Q("13.4 mm")),
    Sketcher.Constraint("DistanceX", -1, 1, 0, 3, Q("39.35 mm")),
])
pocket12 = body.newObject("PartDesign::Pocket", "Pocket011")
pocket12.Profile = sketch14
pocket12.Type = "UpToFirst"
pocket12.Reversed = True

# Sketch on XY plane
sketch15 = body.newObject("Sketcher::SketchObject", "Sketch014")
sketch15.AttachmentSupport = (doc.getObject("XY_Plane"), [""])
sketch15.MapMode = "FlatFace"
sketch15.AttachmentOffset = App.Placement(App.Vector(0, 0, -36.5), App.Rotation())
sketch15.addGeometry(Part.Circle(App.Vector(39.4, 20.4, 0), App.Vector(0, 0, 1), 1.5), False)
sketch15.addConstraint([
    Sketcher.Constraint("Diameter", 0, Q("3 mm")),
    Sketcher.Constraint("DistanceY", -1, 1, 0, 3, Q("20.4 mm")),
    Sketcher.Constraint("DistanceX", -1, 1, 0, 3, Q("39.35 mm")),
])
pocket13 = body.newObject("PartDesign::Pocket", "Pocket012")
pocket13.Profile = sketch15
pocket13.Type = "UpToFirst"
pocket13.Reversed = True

# Sketch on XY plane
sketch16 = body.newObject("Sketcher::SketchObject", "Sketch015")
sketch16.AttachmentSupport = (doc.getObject("XY_Plane"), [""])
sketch16.MapMode = "FlatFace"
sketch16.AttachmentOffset = App.Placement(App.Vector(0, 0, -36.5), App.Rotation())
sketch16.addGeometry(Part.Circle(App.Vector(32.4, 13.4, 0), App.Vector(0, 0, 1), 1.5), False)
sketch16.addConstraint([
    Sketcher.Constraint("Diameter", 0, Q("3 mm")),
    Sketcher.Constraint("DistanceY", -1, 1, 0, 3, Q("13.4 mm")),
    Sketcher.Constraint("DistanceX", -1, 1, 0, 3, Q("32.35 mm")),
])
pocket14 = body.newObject("PartDesign::Pocket", "Pocket013")
pocket14.Profile = sketch16
pocket14.Type = "UpToFirst"
pocket14.Reversed = True

doc.recompute()
